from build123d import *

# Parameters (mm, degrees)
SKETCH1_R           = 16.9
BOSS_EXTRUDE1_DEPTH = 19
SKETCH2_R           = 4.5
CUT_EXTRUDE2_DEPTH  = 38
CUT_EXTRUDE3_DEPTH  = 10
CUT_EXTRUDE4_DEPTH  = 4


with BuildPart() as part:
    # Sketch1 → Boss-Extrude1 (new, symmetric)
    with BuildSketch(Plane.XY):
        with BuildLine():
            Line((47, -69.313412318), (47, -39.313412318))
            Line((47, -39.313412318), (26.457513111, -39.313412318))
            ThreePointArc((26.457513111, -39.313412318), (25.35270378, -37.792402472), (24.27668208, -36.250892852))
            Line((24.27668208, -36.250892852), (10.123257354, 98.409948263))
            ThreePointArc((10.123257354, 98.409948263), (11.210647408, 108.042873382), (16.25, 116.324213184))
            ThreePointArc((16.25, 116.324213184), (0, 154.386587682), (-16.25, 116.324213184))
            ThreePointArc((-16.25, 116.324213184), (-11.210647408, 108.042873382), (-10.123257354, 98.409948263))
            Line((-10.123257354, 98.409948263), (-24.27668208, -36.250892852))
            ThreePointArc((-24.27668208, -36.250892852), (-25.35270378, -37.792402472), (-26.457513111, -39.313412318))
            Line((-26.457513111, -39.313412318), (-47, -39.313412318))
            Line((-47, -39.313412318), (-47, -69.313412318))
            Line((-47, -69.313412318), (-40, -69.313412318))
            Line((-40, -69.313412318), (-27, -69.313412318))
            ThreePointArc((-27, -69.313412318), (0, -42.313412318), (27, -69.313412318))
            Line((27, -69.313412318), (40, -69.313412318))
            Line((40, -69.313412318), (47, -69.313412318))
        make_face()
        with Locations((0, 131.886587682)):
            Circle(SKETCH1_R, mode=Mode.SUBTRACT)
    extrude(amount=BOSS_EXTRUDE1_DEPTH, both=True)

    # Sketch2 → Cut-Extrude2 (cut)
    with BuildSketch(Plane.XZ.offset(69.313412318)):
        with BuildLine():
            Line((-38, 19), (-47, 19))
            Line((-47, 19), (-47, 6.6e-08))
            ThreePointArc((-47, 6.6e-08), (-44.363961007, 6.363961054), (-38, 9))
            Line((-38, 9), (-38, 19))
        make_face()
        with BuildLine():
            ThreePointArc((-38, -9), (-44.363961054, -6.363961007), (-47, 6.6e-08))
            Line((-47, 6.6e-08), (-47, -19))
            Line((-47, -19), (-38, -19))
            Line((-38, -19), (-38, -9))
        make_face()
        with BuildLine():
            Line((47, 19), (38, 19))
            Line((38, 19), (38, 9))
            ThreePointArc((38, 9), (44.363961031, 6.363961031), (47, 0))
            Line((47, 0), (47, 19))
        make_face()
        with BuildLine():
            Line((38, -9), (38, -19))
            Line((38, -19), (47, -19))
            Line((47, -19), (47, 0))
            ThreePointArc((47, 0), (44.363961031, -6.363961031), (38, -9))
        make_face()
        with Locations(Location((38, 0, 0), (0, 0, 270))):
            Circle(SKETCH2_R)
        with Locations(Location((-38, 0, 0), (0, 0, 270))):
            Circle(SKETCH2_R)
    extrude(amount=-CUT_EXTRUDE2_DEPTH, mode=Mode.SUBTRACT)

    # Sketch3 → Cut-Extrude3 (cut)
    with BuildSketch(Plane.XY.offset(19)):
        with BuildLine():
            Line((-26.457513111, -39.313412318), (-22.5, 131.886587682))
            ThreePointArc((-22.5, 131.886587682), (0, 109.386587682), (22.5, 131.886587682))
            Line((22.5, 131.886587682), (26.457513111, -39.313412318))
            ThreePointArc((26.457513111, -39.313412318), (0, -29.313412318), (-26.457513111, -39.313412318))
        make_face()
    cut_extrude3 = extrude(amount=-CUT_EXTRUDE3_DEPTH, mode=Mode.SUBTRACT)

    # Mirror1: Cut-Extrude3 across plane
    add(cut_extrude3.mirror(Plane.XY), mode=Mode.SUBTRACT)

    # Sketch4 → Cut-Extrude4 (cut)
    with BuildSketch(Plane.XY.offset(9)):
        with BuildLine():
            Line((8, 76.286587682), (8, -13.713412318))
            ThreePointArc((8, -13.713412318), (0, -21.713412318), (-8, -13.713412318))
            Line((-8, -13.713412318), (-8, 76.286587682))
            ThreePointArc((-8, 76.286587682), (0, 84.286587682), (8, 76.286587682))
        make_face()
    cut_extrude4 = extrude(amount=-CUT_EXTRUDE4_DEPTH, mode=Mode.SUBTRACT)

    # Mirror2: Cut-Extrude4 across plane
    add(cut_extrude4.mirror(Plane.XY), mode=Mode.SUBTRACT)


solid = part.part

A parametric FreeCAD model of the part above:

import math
import FreeCAD as App
import Part
import Sketcher
Q = App.Units.Quantity

doc = App.newDocument("Part")
body = doc.addObject("PartDesign::Body", "Body")

sketch1 = body.newObject("Sketcher::SketchObject", "Sketch")
sketch1.AttachmentSupport = (doc.getObject("XY_Plane"), [""])
sketch1.MapMode = "FlatFace"
sketch1.addGeometry(Part.LineSegment(App.Vector(47, -69.313412, 0), App.Vector(47, -39.313412, 0)), False)
sketch1.addGeometry(Part.LineSegment(App.Vector(47, -39.313412, 0), App.Vector(26.457513, -39.313412, 0)), False)
sketch1.addGeometry(Part.ArcOfCircle(Part.Circle(App.Vector(106.810034, 20.213653, 0), App.Vector(0, 0, 1), 99.999996), math.radians(-145.622323), math.radians(-143.468069)), False)
sketch1.addGeometry(Part.LineSegment(App.Vector(24.276682, -36.250893, 0), App.Vector(10.123257, 98.409948, 0)), False)
sketch1.addGeometry(Part.ArcOfCircle(Part.Circle(App.Vector(32.5, 100.761839, 0), App.Vector(0, 0, 1), 22.5), math.radians(136.238257), math.radians(186)), False)
sketch1.addGeometry(Part.ArcOfCircle(Part.Circle(App.Vector(0, 131.886588, 0), App.Vector(0, 0, 1), 22.5), math.radians(-43.761743), math.radians(223.761743)), False)
sketch1.addGeometry(Part.ArcOfCircle(Part.Circle(App.Vector(-32.5, 100.761839, 0), App.Vector(0, 0, 1), 22.5), math.radians(-6), math.radians(43.761743)), False)
sketch1.addGeometry(Part.LineSegment(App.Vector(-10.123257, 98.409948, 0), App.Vector(-24.276682, -36.250893, 0)), False)
sketch1.addGeometry(Part.ArcOfCircle(Part.Circle(App.Vector(-106.810034, 20.213653, 0), App.Vector(0, 0, 1), 99.999996), math.radians(-36.531931), math.radians(-34.377677)), False)
sketch1.addGeometry(Part.LineSegment(App.Vector(-26.457513, -39.313412, 0), App.Vector(-47, -39.313412, 0)), False)
sketch1.addGeometry(Part.LineSegment(App.Vector(-47, -39.313412, 0), App.Vector(-47, -69.313412, 0)), False)
sketch1.addGeometry(Part.LineSegment(App.Vector(-47, -69.313412, 0), App.Vector(-27, -69.313412, 0)), False)
sketch1.addGeometry(Part.ArcOfCircle(Part.Circle(App.Vector(0, -69.313412, 0), App.Vector(0, 0, 1), 27), math.radians(0), math.radians(180)), False)
sketch1.addGeometry(Part.LineSegment(App.Vector(27, -69.313412, 0), App.Vector(47, -69.313412, 0)), False)
sketch1.addGeometry(Part.Circle(App.Vector(0, 131.886588, 0), App.Vector(0, 0, 1), 16.9), False)
sketch1.addConstraint(Sketcher.Constraint("Coincident", 0, 2, 1, 1))
sketch1.addConstraint(Sketcher.Constraint("Coincident", 1, 2, 2, 2))
sketch1.addConstraint(Sketcher.Constraint("Coincident", 2, 1, 3, 1))
sketch1.addConstraint(Sketcher.Constraint("Tangent", 3, 2, 4, 2))
sketch1.addConstraint(Sketcher.Constraint("Tangent", 4, 1, 5, 1))
sketch1.addConstraint(Sketcher.Constraint("Tangent", 5, 2, 6, 2))
sketch1.addConstraint(Sketcher.Constraint("Tangent", 6, 1, 7, 1))
sketch1.addConstraint(Sketcher.Constraint("Coincident", 7, 2, 8, 2))
sketch1.addConstraint(Sketcher.Constraint("Coincident", 8, 1, 9, 1))
sketch1.addConstraint(Sketcher.Constraint("Coincident", 9, 2, 10, 1))
sketch1.addConstraint(Sketcher.Constraint("Coincident", 10, 2, 11, 1))
sketch1.addConstraint(Sketcher.Constraint("Coincident", 11, 2, 12, 2))
sketch1.addConstraint(Sketcher.Constraint("Coincident", 12, 1, 13, 1))
sketch1.addConstraint(Sketcher.Constraint("Coincident", 13, 2, 0, 1))
sketch1.addConstraint(Sketcher.Constraint("Vertical", 0))
sketch1.addConstraint(Sketcher.Constraint("Horizontal", 1))
sketch1.addConstraint(Sketcher.Constraint("Horizontal", 9))
sketch1.addConstraint(Sketcher.Constraint("Vertical", 10))
sketch1.addConstraint(Sketcher.Constraint("Horizontal", 11))
sketch1.addConstraint(Sketcher.Constraint("Horizontal", 13))
sketch1.addConstraint(Sketcher.Constraint("Coincident", 14, 3, 5, 3))
sketch1.addConstraint(Sketcher.Constraint("Equal", 4, 5))
sketch1.addConstraint(Sketcher.Constraint("Equal", 5, 6))
sketch1.addConstraint(Sketcher.Constraint("Equal", 2, 8))
sketch1.addConstraint(Sketcher.Constraint("Symmetric", 4, 3, 6, 3, -2))
sketch1.addConstraint(Sketcher.Constraint("Symmetric", 2, 3, 8, 3, -2))
sketch1.addConstraint(Sketcher.Constraint("Symmetric", 0, 2, 9, 2, -2))
sketch1.addConstraint(Sketcher.Constraint("Symmetric", 11, 2, 12, 1, -2))
sketch1.addConstraint(Sketcher.Constraint("Horizontal", 3, 2, 6, 1))
sketch1.addConstraint(Sketcher.Constraint("Horizontal", 12, 3, 10, 2))
sketch1.addConstraint(Sketcher.Constraint("Radius", 12, 27.0))
sketch1.addConstraint(Sketcher.Constraint("Diameter", 14, 33.8))
sketch1.addConstraint(Sketcher.Constraint("Radius", 4, 22.5))
sketch1.addConstraint(Sketcher.Constraint("DistanceX", 11, 1, 11, 2, 20.0))
sketch1.addConstraint(Sketcher.Constraint("DistanceY", 0, 1, 0, 2, 30.0))
sketch1.addConstraint(Sketcher.Constraint("Angle", 3, Q("96 deg")))
sketch1.addConstraint(Sketcher.Constraint("DistanceX", 6, 3, 4, 3, 65.0))
sketch1.addConstraint(Sketcher.Constraint("DistanceY", 12, 3, 5, 3, 201.2))
sketch1.addConstraint(Sketcher.Constraint("Radius", 2, 99.999996))
sketch1.addConstraint(Sketcher.Constraint("Distance", 3, 135.402591))
sketch1.addConstraint(Sketcher.Constraint("DistanceX", 1, 2, 1, 1, 20.542487))
sketch1.addConstraint(Sketcher.Constraint("DistanceY", -1, 1, 4, 3, 100.761839))
pad1 = body.newObject("PartDesign::Pad", "Pad")
pad1.Profile = sketch1
pad1.Length = 38
pad1.Midplane = True

sketch2 = body.newObject("Sketcher::SketchObject", "Sketch001")
sketch2.AttachmentSupport = (doc.getObject("XZ_Plane"), [""])
sketch2.MapMode = "FlatFace"
sketch2.AttachmentOffset = App.Placement(App.Vector(0, 0, 69.313412), App.Rotation())
sketch2.addGeometry(Part.LineSegment(App.Vector(-38, 19, 0), App.Vector(-47, 19, 0)), False)
sketch2.addGeometry(Part.LineSegment(App.Vector(-47, 19, 0), App.Vector(-47, 0, 0)), False)
sketch2.addGeometry(Part.ArcOfCircle(Part.Circle(App.Vector(-38, 0, 0), App.Vector(0, 0, 1), 9), math.radians(90), math.radians(180)), False)
sketch2.addGeometry(Part.LineSegment(App.Vector(-38, 9, 0), App.Vector(-38, 19, 0)), False)
sketch2.addGeometry(Part.ArcOfCircle(Part.Circle(App.Vector(-38, 0, 0), App.Vector(0, 0, 1), 9), math.radians(180), math.radians(270)), False)
sketch2.addGeometry(Part.LineSegment(App.Vector(-47, 0, 0), App.Vector(-47, -19, 0)), False)
sketch2.addGeometry(Part.LineSegment(App.Vector(-47, -19, 0), App.Vector(-38, -19, 0)), False)
sketch2.addGeometry(Part.LineSegment(App.Vector(-38, -19, 0), App.Vector(-38, -9, 0)), False)
sketch2.addGeometry(Part.LineSegment(App.Vector(47, 19, 0), App.Vector(38, 19, 0)), False)
sketch2.addGeometry(Part.LineSegment(App.Vector(38, 19, 0), App.Vector(38, 9, 0)), False)
sketch2.addGeometry(Part.ArcOfCircle(Part.Circle(App.Vector(38, 0, 0), App.Vector(0, 0, 1), 9), math.radians(0), math.radians(90)), False)
sketch2.addGeometry(Part.LineSegment(App.Vector(47, 0, 0), App.Vector(47, 19, 0)), False)
sketch2.addGeometry(Part.LineSegment(App.Vector(38, -9, 0), App.Vector(38, -19, 0)), False)
sketch2.addGeometry(Part.LineSegment(App.Vector(38, -19, 0), App.Vector(47, -19, 0)), False)
sketch2.addGeometry(Part.LineSegment(App.Vector(47, -19, 0), App.Vector(47, 0, 0)), False)
sketch2.addGeometry(Part.ArcOfCircle(Part.Circle(App.Vector(38, 0, 0), App.Vector(0, 0, 1), 9), math.radians(-90), math.radians(0)), False)
sketch2.addGeometry(Part.Circle(App.Vector(38, 0, 0), App.Vector(0, 0, 1), 4.5), False)
sketch2.addGeometry(Part.Circle(App.Vector(-38, 0, 0), App.Vector(0, 0, 1), 4.5), False)
sketch2.addConstraint(Sketcher.Constraint("Coincident", 0, 2, 1, 1))
sketch2.addConstraint(Sketcher.Constraint("Tangent", 1, 2, 2, 2))
sketch2.addConstraint(Sketcher.Constraint("Coincident", 2, 1, 3, 1))
sketch2.addConstraint(Sketcher.Constraint("Coincident", 3, 2, 0, 1))
sketch2.addConstraint(Sketcher.Constraint("Tangent", 4, 1, 5, 1))
sketch2.addConstraint(Sketcher.Constraint("Coincident", 5, 2, 6, 1))
sketch2.addConstraint(Sketcher.Constraint("Coincident", 6, 2, 7, 1))
sketch2.addConstraint(Sketcher.Constraint("Coincident", 7, 2, 4, 2))
sketch2.addConstraint(Sketcher.Constraint("Coincident", 8, 2, 9, 1))
sketch2.addConstraint(Sketcher.Constraint("Coincident", 9, 2, 10, 2))
sketch2.addConstraint(Sketcher.Constraint("Tangent", 10, 1, 11, 1))
sketch2.addConstraint(Sketcher.Constraint("Coincident", 11, 2, 8, 1))
sketch2.addConstraint(Sketcher.Constraint("Coincident", 12, 2, 13, 1))
sketch2.addConstraint(Sketcher.Constraint("Coincident", 13, 2, 14, 1))
sketch2.addConstraint(Sketcher.Constraint("Tangent", 14, 2, 15, 2))
sketch2.addConstraint(Sketcher.Constraint("Coincident", 15, 1, 12, 1))
sketch2.addConstraint(Sketcher.Constraint("Horizontal", 0))
sketch2.addConstraint(Sketcher.Constraint("Vertical", 1))
sketch2.addConstraint(Sketcher.Constraint("Vertical", 3))
sketch2.addConstraint(Sketcher.Constraint("Vertical", 5))
sketch2.addConstraint(Sketcher.Constraint("Horizontal", 6))
sketch2.addConstraint(Sketcher.Constraint("Vertical", 7))
sketch2.addConstraint(Sketcher.Constraint("Horizontal", 8))
sketch2.addConstraint(Sketcher.Constraint("Vertical", 9))
sketch2.addConstraint(Sketcher.Constraint("Vertical", 11))
sketch2.addConstraint(Sketcher.Constraint("Vertical", 12))
sketch2.addConstraint(Sketcher.Constraint("Horizontal", 13))
sketch2.addConstraint(Sketcher.Constraint("Vertical", 14))
sketch2.addConstraint(Sketcher.Constraint("Coincident", 4, 3, 2, 3))
sketch2.addConstraint(Sketcher.Constraint("Coincident", 15, 3, 10, 3))
sketch2.addConstraint(Sketcher.Constraint("Coincident", 16, 3, 10, 3))
sketch2.addConstraint(Sketcher.Constraint("Coincident", 17, 3, 2, 3))
sketch2.addConstraint(Sketcher.Constraint("Equal", 2, 4))
sketch2.addConstraint(Sketcher.Constraint("Equal", 4, 10))
sketch2.addConstraint(Sketcher.Constraint("Equal", 10, 15))
sketch2.addConstraint(Sketcher.Constraint("Equal", 16, 17))
sketch2.addConstraint(Sketcher.Constraint("Symmetric", 2, 3, 10, 3, -1, 1))
sketch2.addConstraint(Sketcher.Constraint("Symmetric", 6, 2, 8, 2, -1, 1))
sketch2.addConstraint(Sketcher.Constraint("Symmetric", 3, 2, 12, 2, -1, 1))
sketch2.addConstraint(Sketcher.Constraint("Symmetric", 3, 2, 8, 2, -2))
sketch2.addConstraint(Sketcher.Constraint("PointOnObject", 2, 3, -1))
sketch2.addConstraint(Sketcher.Constraint("Vertical", 17, 3, 2, 1))
sketch2.addConstraint(Sketcher.Constraint("Diameter", 16, 9.0))
sketch2.addConstraint(Sketcher.Constraint("Radius", 2, 9.0))
sketch2.addConstraint(Sketcher.Constraint("DistanceY", 1, 2, 1, 1, 19.0))
sketch2.addConstraint(Sketcher.Constraint("DistanceX", 2, 3, -1, 1, 38.0))
pocket1 = body.newObject("PartDesign::Pocket", "Pocket")
pocket1.Profile = sketch2
pocket1.Length = 38

sketch3 = body.newObject("Sketcher::SketchObject", "Sketch002")
sketch3.AttachmentSupport = (doc.getObject("XY_Plane"), [""])
sketch3.MapMode = "FlatFace"
sketch3.AttachmentOffset = App.Placement(App.Vector(0, 0, 19), App.Rotation())
sketch3.addGeometry(Part.LineSegment(App.Vector(-22.5, 131.886588, 0), App.Vector(-26.457513, -39.313412, 0)), False)
sketch3.addGeometry(Part.ArcOfCircle(Part.Circle(App.Vector(0, -69.313412, 0), App.Vector(0, 0, 1), 40), math.radians(48.590378), math.radians(131.409622)), False)
sketch3.addGeometry(Part.LineSegment(App.Vector(26.457513, -39.313412, 0), App.Vector(22.5, 131.886588, 0)), False)
sketch3.addGeometry(Part.ArcOfCircle(Part.Circle(App.Vector(0, 131.886588, 0), App.Vector(0, 0, 1), 22.5), math.radians(180), math.radians(360)), False)
sketch3.addConstraint(Sketcher.Constraint("Coincident", 0, 2, 1, 2))
sketch3.addConstraint(Sketcher.Constraint("Coincident", 1, 1, 2, 1))
sketch3.addConstraint(Sketcher.Constraint("Coincident", 2, 2, 3, 2))
sketch3.addConstraint(Sketcher.Constraint("Coincident", 3, 1, 0, 1))
sketch3.addConstraint(Sketcher.Constraint("Symmetric", 0, 2, 1, 1, -2))
sketch3.addConstraint(Sketcher.Constraint("Symmetric", 2, 2, 3, 1, -2))
sketch3.addConstraint(Sketcher.Constraint("Horizontal", 3, 3, 2, 2))
sketch3.addConstraint(Sketcher.Constraint("Radius", 1, 40.0))
sketch3.addConstraint(Sketcher.Constraint("Radius", 3, 22.5))
sketch3.addConstraint(Sketcher.Constraint("DistanceY", 1, 3, 0, 2, 30.0))
sketch3.addConstraint(Sketcher.Constraint("DistanceY", 1, 3, 3, 3, 201.2))
sketch3.addConstraint(Sketcher.Constraint("DistanceY", 1, 3, -1, 1, 69.313412))
pocket2 = body.newObject("PartDesign::Pocket", "Pocket001")
pocket2.Profile = sketch3
pocket2.Length = 10
doc.recompute()

mirrored = body.newObject("PartDesign::Mirrored", "Mirrored")
mirrored.Originals = [pocket2]
mirrored.MirrorPlane = (doc.getObject("XY_Plane"), [""])
body.Tip = mirrored

sketch4 = body.newObject("Sketcher::SketchObject", "Sketch003")
sketch4.AttachmentSupport = (doc.getObject("XY_Plane"), [""])
sketch4.MapMode = "FlatFace"
sketch4.AttachmentOffset = App.Placement(App.Vector(0, 0, 9), App.Rotation())
sketch4.addGeometry(Part.LineSegment(App.Vector(8, -13.713412, 0), App.Vector(8, 76.286588, 0)), False)
sketch4.addGeometry(Part.ArcOfCircle(Part.Circle(App.Vector(0, 76.286588, 0), App.Vector(0, 0, 1), 8), math.radians(0), math.radians(180)), False)
sketch4.addGeometry(Part.LineSegment(App.Vector(-8, 76.286588, 0), App.Vector(-8, -13.713412, 0)), False)
sketch4.addGeometry(Part.ArcOfCircle(Part.Circle(App.Vector(0, -13.713412, 0), App.Vector(0, 0, 1), 8), math.radians(180), math.radians(360)), False)
sketch4.addConstraint(Sketcher.Constraint("Tangent", 0, 2, 1, 1))
sketch4.addConstraint(Sketcher.Constraint("Tangent", 1, 2, 2, 1))
sketch4.addConstraint(Sketcher.Constraint("Tangent", 2, 2, 3, 1))
sketch4.addConstraint(Sketcher.Constraint("Tangent", 3, 2, 0, 1))
sketch4.addConstraint(Sketcher.Constraint("Vertical", 0))
sketch4.addConstraint(Sketcher.Constraint("Vertical", 2))
sketch4.addConstraint(Sketcher.Constraint("PointOnObject", 1, 3, -2))
sketch4.addConstraint(Sketcher.Constraint("Radius", 1, 8.0))
sketch4.addConstraint(Sketcher.Constraint("DistanceY", 0, 1, 0, 2, 90.0))
sketch4.addConstraint(Sketcher.Constraint("DistanceY", -1, 1, 1, 3, 76.286588))
pocket3 = body.newObject("PartDesign::Pocket", "Pocket002")
pocket3.Profile = sketch4
pocket3.Length = 4
doc.recompute()

mirrored2 = body.newObject("PartDesign::Mirrored", "Mirrored001")
mirrored2.Originals = [pocket3]
mirrored2.MirrorPlane = (doc.getObject("XY_Plane"), [""])
body.Tip = mirrored2

doc.recompute()
